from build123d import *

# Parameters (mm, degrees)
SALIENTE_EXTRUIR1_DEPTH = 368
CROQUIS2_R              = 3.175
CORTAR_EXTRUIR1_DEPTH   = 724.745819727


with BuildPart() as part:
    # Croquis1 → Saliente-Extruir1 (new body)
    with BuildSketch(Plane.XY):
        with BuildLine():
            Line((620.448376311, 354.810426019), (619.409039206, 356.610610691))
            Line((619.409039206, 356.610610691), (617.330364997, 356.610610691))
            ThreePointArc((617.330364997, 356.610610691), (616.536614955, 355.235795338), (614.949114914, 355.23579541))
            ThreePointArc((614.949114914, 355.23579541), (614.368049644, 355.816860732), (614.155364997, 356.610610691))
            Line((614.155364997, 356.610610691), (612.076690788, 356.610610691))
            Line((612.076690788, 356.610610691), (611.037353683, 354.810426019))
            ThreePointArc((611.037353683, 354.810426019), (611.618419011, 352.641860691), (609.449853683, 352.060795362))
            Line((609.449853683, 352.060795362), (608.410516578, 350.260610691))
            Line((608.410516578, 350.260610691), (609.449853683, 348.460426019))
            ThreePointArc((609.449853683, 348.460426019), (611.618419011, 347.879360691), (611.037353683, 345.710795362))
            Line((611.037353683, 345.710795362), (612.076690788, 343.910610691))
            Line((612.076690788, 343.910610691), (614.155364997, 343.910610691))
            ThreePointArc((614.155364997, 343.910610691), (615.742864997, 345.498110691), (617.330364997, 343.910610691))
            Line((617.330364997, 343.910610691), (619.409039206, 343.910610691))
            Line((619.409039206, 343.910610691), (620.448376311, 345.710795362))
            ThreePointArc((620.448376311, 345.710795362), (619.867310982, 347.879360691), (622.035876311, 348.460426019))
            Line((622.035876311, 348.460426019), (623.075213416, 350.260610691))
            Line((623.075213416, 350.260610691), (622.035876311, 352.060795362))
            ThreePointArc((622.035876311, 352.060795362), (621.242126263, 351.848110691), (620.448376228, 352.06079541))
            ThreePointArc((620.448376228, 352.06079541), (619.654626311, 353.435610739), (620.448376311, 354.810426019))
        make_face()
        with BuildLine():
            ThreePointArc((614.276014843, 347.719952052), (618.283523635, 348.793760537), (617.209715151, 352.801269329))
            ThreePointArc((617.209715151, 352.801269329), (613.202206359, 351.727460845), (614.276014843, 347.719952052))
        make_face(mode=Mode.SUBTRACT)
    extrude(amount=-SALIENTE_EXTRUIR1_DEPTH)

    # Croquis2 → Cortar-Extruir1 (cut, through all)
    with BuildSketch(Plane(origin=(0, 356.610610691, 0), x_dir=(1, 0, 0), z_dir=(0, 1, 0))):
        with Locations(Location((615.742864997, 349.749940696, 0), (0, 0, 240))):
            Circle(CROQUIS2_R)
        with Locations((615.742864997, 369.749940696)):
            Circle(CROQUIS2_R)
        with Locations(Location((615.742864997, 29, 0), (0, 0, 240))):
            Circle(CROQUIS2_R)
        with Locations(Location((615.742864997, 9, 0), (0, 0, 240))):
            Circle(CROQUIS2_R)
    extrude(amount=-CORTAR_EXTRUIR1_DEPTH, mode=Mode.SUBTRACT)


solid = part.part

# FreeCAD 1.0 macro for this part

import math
import FreeCAD as App
import Part
import Sketcher
from FreeCAD import Vector
Q = App.Units.Quantity

doc = App.newDocument("Part")
body = doc.addObject("PartDesign::Body", "Body")

# Sketch on XY plane
sketch1 = body.newObject("Sketcher::SketchObject", "Sketch")
sketch1.AttachmentSupport = (doc.getObject("XY_Plane"), [""])
sketch1.MapMode = "FlatFace"
sketch1.addGeometry(Part.LineSegment(Vector(620.4, 354.8, 0), Vector(619.4, 356.6, 0)), False)
sketch1.addGeometry(Part.LineSegment(Vector(619.4, 356.6, 0), Vector(617.3, 356.6, 0)), False)
sketch1.addGeometry(Part.ArcOfCircle(Part.Circle(Vector(615.7, 356.6, 0), Vector(0, 0, 1), 1.6), math.radians(-120), math.radians(0)), False)
sketch1.addGeometry(Part.ArcOfCircle(Part.Circle(Vector(615.7, 356.6, 0), Vector(0, 0, 1), 1.6), math.radians(180), math.radians(240)), False)
sketch1.addGeometry(Part.LineSegment(Vector(614.2, 356.6, 0), Vector(612.1, 356.6, 0)), False)
sketch1.addGeometry(Part.LineSegment(Vector(612.1, 356.6, 0), Vector(611, 354.8, 0)), False)
sketch1.addGeometry(Part.ArcOfCircle(Part.Circle(Vector(610.2, 353.4, 0), Vector(0, 0, 1), 1.6), math.radians(-120), math.radians(60)), False)
sketch1.addGeometry(Part.LineSegment(Vector(609.4, 352.1, 0), Vector(608.4, 350.3, 0)), False)
sketch1.addGeometry(Part.LineSegment(Vector(608.4, 350.3, 0), Vector(609.4, 348.5, 0)), False)
sketch1.addGeometry(Part.ArcOfCircle(Part.Circle(Vector(610.2, 347.1, 0), Vector(0, 0, 1), 1.6), math.radians(-60), math.radians(120)), False)
sketch1.addGeometry(Part.LineSegment(Vector(611, 345.7, 0), Vector(612.1, 343.9, 0)), False)
sketch1.addGeometry(Part.LineSegment(Vector(612.1, 343.9, 0), Vector(614.2, 343.9, 0)), False)
sketch1.addGeometry(Part.ArcOfCircle(Part.Circle(Vector(615.7, 343.9, 0), Vector(0, 0, 1), 1.6), math.radians(0), math.radians(180)), False)
sketch1.addGeometry(Part.LineSegment(Vector(617.3, 343.9, 0), Vector(619.4, 343.9, 0)), False)
sketch1.addGeometry(Part.LineSegment(Vector(619.4, 343.9, 0), Vector(620.4, 345.7, 0)), False)
sketch1.addGeometry(Part.ArcOfCircle(Part.Circle(Vector(621.2, 347.1, 0), Vector(0, 0, 1), 1.6), math.radians(60), math.radians(240)), False)
sketch1.addGeometry(Part.LineSegment(Vector(622, 348.5, 0), Vector(623.1, 350.3, 0)), False)
sketch1.addGeometry(Part.LineSegment(Vector(623.1, 350.3, 0), Vector(622, 352.1, 0)), False)
sketch1.addGeometry(Part.ArcOfCircle(Part.Circle(Vector(621.2, 353.4, 0), Vector(0, 0, 1), 1.6), math.radians(-120), math.radians(-60)), False)
sketch1.addGeometry(Part.ArcOfCircle(Part.Circle(Vector(621.2, 353.4, 0), Vector(0, 0, 1), 1.6), math.radians(120), math.radians(240)), False)
sketch1.addGeometry(Part.ArcOfCircle(Part.Circle(Vector(615.7, 350.3, 0), Vector(0, 0, 1), 2.9), math.radians(-120), math.radians(60)), False)
sketch1.addGeometry(Part.ArcOfCircle(Part.Circle(Vector(615.7, 350.3, 0), Vector(0, 0, 1), 2.9), math.radians(60), math.radians(240)), False)
sketch1.addConstraint(Sketcher.Constraint("Coincident", 0, 2, 1, 1))
sketch1.addConstraint(Sketcher.Constraint("Coincident", 1, 2, 2, 2))
sketch1.addConstraint(Sketcher.Constraint("Tangent", 2, 1, 3, 2))
sketch1.addConstraint(Sketcher.Constraint("Coincident", 3, 1, 4, 1))
sketch1.addConstraint(Sketcher.Constraint("Coincident", 4, 2, 5, 1))
sketch1.addConstraint(Sketcher.Constraint("Coincident", 5, 2, 6, 2))
sketch1.addConstraint(Sketcher.Constraint("Coincident", 6, 1, 7, 1))
sketch1.addConstraint(Sketcher.Constraint("Coincident", 7, 2, 8, 1))
sketch1.addConstraint(Sketcher.Constraint("Coincident", 8, 2, 9, 2))
sketch1.addConstraint(Sketcher.Constraint("Coincident", 9, 1, 10, 1))
sketch1.addConstraint(Sketcher.Constraint("Coincident", 10, 2, 11, 1))
sketch1.addConstraint(Sketcher.Constraint("Coincident", 11, 2, 12, 2))
sketch1.addConstraint(Sketcher.Constraint("Coincident", 12, 1, 13, 1))
sketch1.addConstraint(Sketcher.Constraint("Coincident", 13, 2, 14, 1))
sketch1.addConstraint(Sketcher.Constraint("Coincident", 14, 2, 15, 2))
sketch1.addConstraint(Sketcher.Constraint("Coincident", 15, 1, 16, 1))
sketch1.addConstraint(Sketcher.Constraint("Coincident", 16, 2, 17, 1))
sketch1.addConstraint(Sketcher.Constraint("Coincident", 17, 2, 18, 2))
sketch1.addConstraint(Sketcher.Constraint("Tangent", 18, 1, 19, 2))
sketch1.addConstraint(Sketcher.Constraint("Coincident", 19, 1, 0, 1))
sketch1.addConstraint(Sketcher.Constraint("Tangent", 20, 1, 21, 2))
sketch1.addConstraint(Sketcher.Constraint("Coincident", 21, 1, 20, 2))
sketch1.addConstraint(Sketcher.Constraint("Horizontal", 1))
sketch1.addConstraint(Sketcher.Constraint("Horizontal", 4))
sketch1.addConstraint(Sketcher.Constraint("Horizontal", 11))
sketch1.addConstraint(Sketcher.Constraint("Horizontal", 13))
sketch1.addConstraint(Sketcher.Constraint("Equal", 2, 3))
sketch1.addConstraint(Sketcher.Constraint("Equal", 3, 6))
sketch1.addConstraint(Sketcher.Constraint("Equal", 6, 9))
sketch1.addConstraint(Sketcher.Constraint("Equal", 9, 12))
sketch1.addConstraint(Sketcher.Constraint("Equal", 12, 15))
sketch1.addConstraint(Sketcher.Constraint("Equal", 15, 18))
sketch1.addConstraint(Sketcher.Constraint("Equal", 18, 19))
sketch1.addConstraint(Sketcher.Constraint("Parallel", 5, 7))
sketch1.addConstraint(Sketcher.Constraint("Parallel", 0, 8))
sketch1.addConstraint(Sketcher.Constraint("Parallel", 8, 10))
sketch1.addConstraint(Sketcher.Constraint("Parallel", 7, 14))
sketch1.addConstraint(Sketcher.Constraint("Parallel", 14, 16))
sketch1.addConstraint(Sketcher.Constraint("Parallel", 10, 17))
sketch1.addConstraint(Sketcher.Constraint("Horizontal", 9, 3, 15, 3))
sketch1.addConstraint(Sketcher.Constraint("Horizontal", 6, 3, 18, 3))
sketch1.addConstraint(Sketcher.Constraint("Horizontal", 3, 3, 0, 2))
sketch1.addConstraint(Sketcher.Constraint("Horizontal", 1, 2, 3, 1))
sketch1.addConstraint(Sketcher.Constraint("Horizontal", 21, 3, 7, 2))
sketch1.addConstraint(Sketcher.Constraint("Horizontal", 12, 3, 10, 2))
sketch1.addConstraint(Sketcher.Constraint("Horizontal", 11, 2, 12, 1))
sketch1.addConstraint(Sketcher.Constraint("Horizontal", 9, 1, 14, 2))
sketch1.addConstraint(Sketcher.Constraint("Horizontal", 8, 2, 15, 1))
sketch1.addConstraint(Sketcher.Constraint("Horizontal", 7, 2, 16, 2))
sketch1.addConstraint(Sketcher.Constraint("Horizontal", 6, 1, 17, 2))
sketch1.addConstraint(Sketcher.Constraint("Horizontal", 17, 2, 18, 1))
sketch1.addConstraint(Sketcher.Constraint("Horizontal", 5, 2, 19, 1))
sketch1.addConstraint(Sketcher.Constraint("Vertical", 6, 3, 9, 3))
sketch1.addConstraint(Sketcher.Constraint("Vertical", 3, 3, 12, 3))
sketch1.addConstraint(Sketcher.Constraint("Vertical", 15, 3, 18, 3))
sketch1.addConstraint(Sketcher.Constraint("Vertical", 12, 3, 20, 3))
sketch1.addConstraint(Sketcher.Constraint("Vertical", 6, 1, 8, 2))
sketch1.addConstraint(Sketcher.Constraint("Vertical", 5, 2, 9, 1))
sketch1.addConstraint(Sketcher.Constraint("Vertical", 4, 2, 10, 2))
sketch1.addConstraint(Sketcher.Constraint("Vertical", 14, 2, 18, 1))
sketch1.addConstraint(Sketcher.Constraint("Equal", 1, 4))
sketch1.addConstraint(Sketcher.Constraint("Equal", 5, 7))
sketch1.addConstraint(Sketcher.Constraint("Angle", 0, Q("120 deg")))
sketch1.addConstraint(Sketcher.Constraint("Radius", 2, Q("0.0625 in")))
sketch1.addConstraint(Sketcher.Constraint("Radius", 20, Q("0.1155 in")))
sketch1.addConstraint(Sketcher.Constraint("DistanceY", 12, 3, 3, 3, Q("0.5 in")))
sketch1.addConstraint(Sketcher.Constraint("DistanceX", 2, 1, 3, 3, Q("0.03125 in")))
sketch1.addConstraint(Sketcher.Constraint("DistanceX", 6, 3, 5, 2, Q("0.03125 in")))
sketch1.addConstraint(Sketcher.Constraint("DistanceX", 2, 1, 21, 1, Q("0.089 in")))
sketch1.addConstraint(Sketcher.Constraint("DistanceX", 1, 2, 1, 1, 2.078674))
sketch1.addConstraint(Sketcher.Constraint("DistanceY", -1, 1, 2, 3, 356.610611))
sketch1.addConstraint(Sketcher.Constraint("DistanceX", -1, 1, 0, 2, 619.409039))
sketch1.addConstraint(Sketcher.Constraint("DistanceX", 20, 1, 21, 3, 1.46685))
pad1 = body.newObject("PartDesign::Pad", "Pad")
pad1.Profile = sketch1
pad1.Length = 368
pad1.Reversed = True

# Sketch on XZ plane
sketch2 = body.newObject("Sketcher::SketchObject", "Sketch001")
sketch2.AttachmentSupport = (doc.getObject("XZ_Plane"), [""])
sketch2.MapMode = "FlatFace"
sketch2.AttachmentOffset = App.Placement(Vector(0, 0, -356.610611), App.Rotation())
sketch2.addGeometry(Part.Circle(Vector(615.7, -349.7, 0), Vector(0, 0, 1), 3.2), False)
sketch2.addGeometry(Part.Circle(Vector(615.7, -369.7, 0), Vector(0, 0, 1), 3.2), False)
sketch2.addGeometry(Part.Circle(Vector(615.7, -29, 0), Vector(0, 0, 1), 3.2), False)
sketch2.addGeometry(Part.Circle(Vector(615.7, -9, 0), Vector(0, 0, 1), 3.2), False)
sketch2.addConstraint(Sketcher.Constraint("Equal", 0, 1))
sketch2.addConstraint(Sketcher.Constraint("Equal", 1, 2))
sketch2.addConstraint(Sketcher.Constraint("Equal", 2, 3))
sketch2.addConstraint(Sketcher.Constraint("Vertical", 0, 3, 1, 3))
sketch2.addConstraint(Sketcher.Constraint("Vertical", 1, 3, 2, 3))
sketch2.addConstraint(Sketcher.Constraint("Vertical", 2, 3, 3, 3))
sketch2.addConstraint(Sketcher.Constraint("Diameter", 0, Q("0.25 in")))
sketch2.addConstraint(Sketcher.Constraint("DistanceY", 2, 3, -1, 1, 29.0))
sketch2.addConstraint(Sketcher.Constraint("DistanceY", 3, 3, -1, 1, 9.0))
sketch2.addConstraint(Sketcher.Constraint("DistanceY", 1, 3, 0, 3, 20.0))
sketch2.addConstraint(Sketcher.Constraint("DistanceY", 0, 3, -1, 1, 349.749941))
sketch2.addConstraint(Sketcher.Constraint("DistanceX", -1, 1, 0, 3, 615.742865))
pocket1 = body.newObject("PartDesign::Pocket", "Pocket")
pocket1.Profile = sketch2
pocket1.Type = "ThroughAll"
pocket1.Reversed = True

doc.recompute()
